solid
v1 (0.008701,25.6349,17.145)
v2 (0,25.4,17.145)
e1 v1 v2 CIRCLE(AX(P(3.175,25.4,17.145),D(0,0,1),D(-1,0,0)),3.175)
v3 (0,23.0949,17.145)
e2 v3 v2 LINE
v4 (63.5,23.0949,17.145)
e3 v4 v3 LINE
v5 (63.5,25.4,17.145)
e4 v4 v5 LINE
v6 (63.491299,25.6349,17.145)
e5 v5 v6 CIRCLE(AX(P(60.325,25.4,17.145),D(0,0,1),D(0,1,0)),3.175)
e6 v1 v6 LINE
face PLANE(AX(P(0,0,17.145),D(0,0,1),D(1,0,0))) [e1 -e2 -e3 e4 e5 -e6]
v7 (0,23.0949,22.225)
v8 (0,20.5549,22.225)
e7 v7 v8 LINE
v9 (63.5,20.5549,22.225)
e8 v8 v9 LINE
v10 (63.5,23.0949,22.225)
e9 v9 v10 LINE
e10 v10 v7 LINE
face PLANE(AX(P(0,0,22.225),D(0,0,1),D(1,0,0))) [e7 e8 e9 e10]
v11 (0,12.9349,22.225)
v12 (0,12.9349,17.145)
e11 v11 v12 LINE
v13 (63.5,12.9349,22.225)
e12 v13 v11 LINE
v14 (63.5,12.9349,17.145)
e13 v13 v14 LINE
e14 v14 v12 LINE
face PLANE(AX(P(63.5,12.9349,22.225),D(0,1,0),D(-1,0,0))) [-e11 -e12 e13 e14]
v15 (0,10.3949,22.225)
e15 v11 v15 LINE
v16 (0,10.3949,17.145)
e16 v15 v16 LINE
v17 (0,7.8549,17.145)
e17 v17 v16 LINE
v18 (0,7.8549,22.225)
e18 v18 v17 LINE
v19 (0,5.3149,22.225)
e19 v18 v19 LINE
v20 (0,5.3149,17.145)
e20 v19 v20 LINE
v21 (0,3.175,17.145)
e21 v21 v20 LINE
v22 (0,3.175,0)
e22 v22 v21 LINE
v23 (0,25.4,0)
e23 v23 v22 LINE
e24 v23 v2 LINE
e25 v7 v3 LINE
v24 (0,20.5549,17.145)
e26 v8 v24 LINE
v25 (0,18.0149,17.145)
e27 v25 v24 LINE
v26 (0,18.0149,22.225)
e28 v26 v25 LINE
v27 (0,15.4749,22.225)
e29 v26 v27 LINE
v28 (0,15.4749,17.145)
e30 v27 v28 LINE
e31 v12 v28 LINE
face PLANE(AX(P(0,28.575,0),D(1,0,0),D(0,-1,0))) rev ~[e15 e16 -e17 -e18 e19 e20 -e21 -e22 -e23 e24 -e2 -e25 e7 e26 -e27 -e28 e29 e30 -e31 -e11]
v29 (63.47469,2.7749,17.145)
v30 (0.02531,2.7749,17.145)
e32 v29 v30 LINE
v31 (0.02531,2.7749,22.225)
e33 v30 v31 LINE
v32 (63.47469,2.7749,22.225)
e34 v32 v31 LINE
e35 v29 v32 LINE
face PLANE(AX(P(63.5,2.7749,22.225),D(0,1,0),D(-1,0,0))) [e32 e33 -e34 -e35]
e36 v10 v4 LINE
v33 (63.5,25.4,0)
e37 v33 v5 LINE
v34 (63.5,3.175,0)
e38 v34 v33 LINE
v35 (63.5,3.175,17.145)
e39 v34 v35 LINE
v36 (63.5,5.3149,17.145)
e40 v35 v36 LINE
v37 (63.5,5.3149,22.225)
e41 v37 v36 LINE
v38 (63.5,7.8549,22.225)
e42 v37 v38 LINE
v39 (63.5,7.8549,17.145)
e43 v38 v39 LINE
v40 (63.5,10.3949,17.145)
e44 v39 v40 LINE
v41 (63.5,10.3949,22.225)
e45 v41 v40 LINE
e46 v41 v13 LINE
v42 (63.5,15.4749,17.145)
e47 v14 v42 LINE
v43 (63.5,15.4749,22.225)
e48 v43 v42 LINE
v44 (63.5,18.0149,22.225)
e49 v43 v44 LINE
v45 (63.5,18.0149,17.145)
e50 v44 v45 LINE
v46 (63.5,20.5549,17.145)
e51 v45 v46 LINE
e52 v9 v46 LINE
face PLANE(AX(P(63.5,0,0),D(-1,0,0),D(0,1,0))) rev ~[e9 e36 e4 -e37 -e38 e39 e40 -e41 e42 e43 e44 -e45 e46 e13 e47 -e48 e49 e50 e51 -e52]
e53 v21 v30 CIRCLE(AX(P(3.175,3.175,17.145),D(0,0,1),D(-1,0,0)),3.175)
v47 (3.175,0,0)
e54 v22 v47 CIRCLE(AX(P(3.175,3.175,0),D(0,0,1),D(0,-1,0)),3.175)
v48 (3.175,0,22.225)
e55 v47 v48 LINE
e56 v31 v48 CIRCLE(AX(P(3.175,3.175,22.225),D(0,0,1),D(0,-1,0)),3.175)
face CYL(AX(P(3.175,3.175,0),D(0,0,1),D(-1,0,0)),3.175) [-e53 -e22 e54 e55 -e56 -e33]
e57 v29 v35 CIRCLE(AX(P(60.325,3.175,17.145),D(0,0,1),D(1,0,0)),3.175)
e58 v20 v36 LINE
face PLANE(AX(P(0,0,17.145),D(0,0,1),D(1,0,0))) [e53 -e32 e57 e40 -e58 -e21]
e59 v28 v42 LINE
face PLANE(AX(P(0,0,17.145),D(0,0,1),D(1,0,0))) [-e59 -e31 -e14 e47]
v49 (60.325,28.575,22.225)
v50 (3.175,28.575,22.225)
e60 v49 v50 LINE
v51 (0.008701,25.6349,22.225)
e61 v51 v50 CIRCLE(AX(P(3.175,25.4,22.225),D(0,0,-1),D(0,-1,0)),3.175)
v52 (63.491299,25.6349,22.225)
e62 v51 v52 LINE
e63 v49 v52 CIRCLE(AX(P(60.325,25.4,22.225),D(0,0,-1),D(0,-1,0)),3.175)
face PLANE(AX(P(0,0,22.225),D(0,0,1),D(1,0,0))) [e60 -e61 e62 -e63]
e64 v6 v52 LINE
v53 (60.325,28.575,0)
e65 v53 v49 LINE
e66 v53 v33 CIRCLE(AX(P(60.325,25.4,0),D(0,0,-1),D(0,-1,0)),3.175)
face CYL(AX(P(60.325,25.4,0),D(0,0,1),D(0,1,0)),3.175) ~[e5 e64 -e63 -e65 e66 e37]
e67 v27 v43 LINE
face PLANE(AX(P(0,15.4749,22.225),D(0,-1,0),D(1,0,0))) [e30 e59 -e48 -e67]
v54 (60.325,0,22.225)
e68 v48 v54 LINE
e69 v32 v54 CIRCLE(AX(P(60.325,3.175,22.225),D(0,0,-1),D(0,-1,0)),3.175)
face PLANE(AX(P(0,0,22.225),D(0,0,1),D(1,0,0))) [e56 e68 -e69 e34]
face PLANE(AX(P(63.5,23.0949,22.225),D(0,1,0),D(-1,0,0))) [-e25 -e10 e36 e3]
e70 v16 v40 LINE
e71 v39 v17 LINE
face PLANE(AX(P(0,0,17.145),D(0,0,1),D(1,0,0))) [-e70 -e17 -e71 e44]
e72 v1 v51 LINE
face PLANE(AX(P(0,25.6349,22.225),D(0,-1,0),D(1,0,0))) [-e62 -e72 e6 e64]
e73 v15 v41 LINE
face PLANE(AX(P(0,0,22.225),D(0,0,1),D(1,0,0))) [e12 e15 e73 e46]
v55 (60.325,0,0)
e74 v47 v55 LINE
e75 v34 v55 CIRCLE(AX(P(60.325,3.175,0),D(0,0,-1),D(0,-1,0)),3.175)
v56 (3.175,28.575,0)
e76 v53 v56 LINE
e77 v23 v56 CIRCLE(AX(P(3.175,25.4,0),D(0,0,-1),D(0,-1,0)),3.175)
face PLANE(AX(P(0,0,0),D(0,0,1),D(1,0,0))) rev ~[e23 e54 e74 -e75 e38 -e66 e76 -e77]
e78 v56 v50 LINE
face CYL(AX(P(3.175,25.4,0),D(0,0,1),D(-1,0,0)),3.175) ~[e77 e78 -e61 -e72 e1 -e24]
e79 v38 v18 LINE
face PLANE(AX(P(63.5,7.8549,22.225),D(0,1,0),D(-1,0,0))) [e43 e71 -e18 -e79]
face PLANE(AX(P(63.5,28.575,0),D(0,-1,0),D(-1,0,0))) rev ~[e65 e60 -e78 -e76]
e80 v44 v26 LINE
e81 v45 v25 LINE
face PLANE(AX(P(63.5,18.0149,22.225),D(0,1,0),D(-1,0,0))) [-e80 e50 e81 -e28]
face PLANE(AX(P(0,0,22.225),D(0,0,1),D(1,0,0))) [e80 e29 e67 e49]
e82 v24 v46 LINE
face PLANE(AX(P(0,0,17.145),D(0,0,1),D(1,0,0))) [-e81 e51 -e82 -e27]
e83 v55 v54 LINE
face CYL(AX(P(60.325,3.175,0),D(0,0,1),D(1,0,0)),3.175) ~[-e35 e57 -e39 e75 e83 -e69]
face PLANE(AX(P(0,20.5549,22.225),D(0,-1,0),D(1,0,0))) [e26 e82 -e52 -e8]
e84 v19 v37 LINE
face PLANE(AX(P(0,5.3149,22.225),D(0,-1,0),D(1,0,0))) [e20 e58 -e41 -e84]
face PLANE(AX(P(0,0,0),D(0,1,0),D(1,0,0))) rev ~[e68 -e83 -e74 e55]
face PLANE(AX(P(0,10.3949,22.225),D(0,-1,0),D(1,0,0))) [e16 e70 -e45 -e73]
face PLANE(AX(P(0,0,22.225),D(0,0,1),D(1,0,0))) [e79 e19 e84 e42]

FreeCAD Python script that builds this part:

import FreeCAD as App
import Part
import Sketcher
from FreeCAD import Vector
Q = App.Units.Quantity


def edges_at(feature, points):
    """Names of the edges that pass closest to the given points."""
    edges = feature.Shape.Edges
    near = lambda p: min(range(len(edges)), key=lambda i: edges[i].distToShape(Part.Vertex(*p))[0])
    return sorted({f"Edge{near(p) + 1}" for p in points})

doc = App.newDocument("Part")
body = doc.addObject("PartDesign::Body", "Body")

# Sketch on XY plane
sketch1 = body.newObject("Sketcher::SketchObject", "Sketch")
sketch1.AttachmentSupport = (doc.getObject("XY_Plane"), [""])
sketch1.MapMode = "FlatFace"
sketch1.addGeometry(Part.LineSegment(Vector(0, 29, 0), Vector(0, 0, 0)), False)
sketch1.addGeometry(Part.LineSegment(Vector(0, 0, 0), Vector(64, 0, 0)), False)
sketch1.addGeometry(Part.LineSegment(Vector(64, 0, 0), Vector(64, 29, 0)), False)
sketch1.addGeometry(Part.LineSegment(Vector(64, 29, 0), Vector(0, 29, 0)), False)
sketch1.addConstraint(Sketcher.Constraint("Coincident", 0, 2, 1, 1))
sketch1.addConstraint(Sketcher.Constraint("Coincident", 1, 2, 2, 1))
sketch1.addConstraint(Sketcher.Constraint("Coincident", 2, 2, 3, 1))
sketch1.addConstraint(Sketcher.Constraint("Coincident", 3, 2, 0, 1))
sketch1.addConstraint(Sketcher.Constraint("Vertical", 0))
sketch1.addConstraint(Sketcher.Constraint("Horizontal", 1))
sketch1.addConstraint(Sketcher.Constraint("Vertical", 2))
sketch1.addConstraint(Sketcher.Constraint("Horizontal", 3))
sketch1.addConstraint(Sketcher.Constraint("Coincident", 0, 2, -1, 1))
sketch1.addConstraint(Sketcher.Constraint("DistanceX", 1, 1, 1, 2, Q("2.5 in")))
sketch1.addConstraint(Sketcher.Constraint("DistanceY", 0, 2, 0, 1, Q("1.125 in")))
pad1 = body.newObject("PartDesign::Pad", "Pad")
pad1.Profile = sketch1
pad1.Length = Q("0.875 in")
doc.recompute()

fillet = body.newObject("PartDesign::Fillet", "Fillet")
fillet.Base = (pad1, edges_at(pad1, [
    (63.5, 28.575, 11.113),
    (63.5, 0, 11.113),
    (0, 0, 11.113),
    (0, 28.575, 11.113),
]))
fillet.Radius = Q("0.125 in")

# Sketch on XY plane
sketch2 = body.newObject("Sketcher::SketchObject", "Sketch001")
sketch2.AttachmentSupport = (doc.getObject("XY_Plane"), [""])
sketch2.MapMode = "FlatFace"
sketch2.AttachmentOffset = App.Placement(Vector(0, 0, 0.875 * 25.4), App.Rotation())
sketch2.addGeometry(Part.LineSegment(Vector(63.5, 2.8, 0), Vector(63.5, 5.3, 0)), False)
sketch2.addGeometry(Part.LineSegment(Vector(63.5, 5.3, 0), Vector(0, 5.3, 0)), False)
sketch2.addGeometry(Part.LineSegment(Vector(0, 5.3, 0), Vector(0, 2.8, 0)), False)
sketch2.addGeometry(Part.LineSegment(Vector(0, 2.8, 0), Vector(63.5, 2.8, 0)), False)
sketch2.addGeometry(Part.LineSegment(Vector(0, 23.1, 0), Vector(63.5, 23.1, 0)), False)
sketch2.addGeometry(Part.LineSegment(Vector(63.5, 23.1, 0), Vector(63.5, 25.6, 0)), False)
sketch2.addGeometry(Part.LineSegment(Vector(63.5, 25.6, 0), Vector(0, 25.6, 0)), False)
sketch2.addGeometry(Part.LineSegment(Vector(0, 25.6, 0), Vector(0, 23.1, 0)), False)
sketch2.addGeometry(Part.LineSegment(Vector(0, 18, 0), Vector(63.5, 18, 0)), False)
sketch2.addGeometry(Part.LineSegment(Vector(63.5, 18, 0), Vector(63.5, 20.6, 0)), False)
sketch2.addGeometry(Part.LineSegment(Vector(63.5, 20.6, 0), Vector(0, 20.6, 0)), False)
sketch2.addGeometry(Part.LineSegment(Vector(0, 20.6, 0), Vector(0, 18, 0)), False)
sketch2.addGeometry(Part.LineSegment(Vector(0, 12.9, 0), Vector(63.5, 12.9, 0)), False)
sketch2.addGeometry(Part.LineSegment(Vector(63.5, 12.9, 0), Vector(63.5, 15.5, 0)), False)
sketch2.addGeometry(Part.LineSegment(Vector(63.5, 15.5, 0), Vector(0, 15.5, 0)), False)
sketch2.addGeometry(Part.LineSegment(Vector(0, 15.5, 0), Vector(0, 12.9, 0)), False)
sketch2.addGeometry(Part.LineSegment(Vector(0, 7.9, 0), Vector(63.5, 7.9, 0)), False)
sketch2.addGeometry(Part.LineSegment(Vector(63.5, 7.9, 0), Vector(63.5, 10.4, 0)), False)
sketch2.addGeometry(Part.LineSegment(Vector(63.5, 10.4, 0), Vector(0, 10.4, 0)), False)
sketch2.addGeometry(Part.LineSegment(Vector(0, 10.4, 0), Vector(0, 7.9, 0)), False)
sketch2.addConstraint(Sketcher.Constraint("Coincident", 0, 2, 1, 1))
sketch2.addConstraint(Sketcher.Constraint("Coincident", 1, 2, 2, 1))
sketch2.addConstraint(Sketcher.Constraint("Coincident", 2, 2, 3, 1))
sketch2.addConstraint(Sketcher.Constraint("Coincident", 3, 2, 0, 1))
sketch2.addConstraint(Sketcher.Constraint("Coincident", 4, 2, 5, 1))
sketch2.addConstraint(Sketcher.Constraint("Coincident", 5, 2, 6, 1))
sketch2.addConstraint(Sketcher.Constraint("Coincident", 6, 2, 7, 1))
sketch2.addConstraint(Sketcher.Constraint("Coincident", 7, 2, 4, 1))
sketch2.addConstraint(Sketcher.Constraint("Coincident", 8, 2, 9, 1))
sketch2.addConstraint(Sketcher.Constraint("Coincident", 9, 2, 10, 1))
sketch2.addConstraint(Sketcher.Constraint("Coincident", 10, 2, 11, 1))
sketch2.addConstraint(Sketcher.Constraint("Coincident", 11, 2, 8, 1))
sketch2.addConstraint(Sketcher.Constraint("Coincident", 12, 2, 13, 1))
sketch2.addConstraint(Sketcher.Constraint("Coincident", 13, 2, 14, 1))
sketch2.addConstraint(Sketcher.Constraint("Coincident", 14, 2, 15, 1))
sketch2.addConstraint(Sketcher.Constraint("Coincident", 15, 2, 12, 1))
sketch2.addConstraint(Sketcher.Constraint("Coincident", 16, 2, 17, 1))
sketch2.addConstraint(Sketcher.Constraint("Coincident", 17, 2, 18, 1))
sketch2.addConstraint(Sketcher.Constraint("Coincident", 18, 2, 19, 1))
sketch2.addConstraint(Sketcher.Constraint("Coincident", 19, 2, 16, 1))
sketch2.addConstraint(Sketcher.Constraint("Vertical", 0))
sketch2.addConstraint(Sketcher.Constraint("Horizontal", 1))
sketch2.addConstraint(Sketcher.Constraint("Vertical", 2))
sketch2.addConstraint(Sketcher.Constraint("Horizontal", 3))
sketch2.addConstraint(Sketcher.Constraint("Horizontal", 4))
sketch2.addConstraint(Sketcher.Constraint("Vertical", 5))
sketch2.addConstraint(Sketcher.Constraint("Horizontal", 6))
sketch2.addConstraint(Sketcher.Constraint("Vertical", 7))
sketch2.addConstraint(Sketcher.Constraint("Horizontal", 8))
sketch2.addConstraint(Sketcher.Constraint("Vertical", 9))
sketch2.addConstraint(Sketcher.Constraint("Horizontal", 10))
sketch2.addConstraint(Sketcher.Constraint("Vertical", 11))
sketch2.addConstraint(Sketcher.Constraint("Horizontal", 12))
sketch2.addConstraint(Sketcher.Constraint("Vertical", 13))
sketch2.addConstraint(Sketcher.Constraint("Horizontal", 14))
sketch2.addConstraint(Sketcher.Constraint("Vertical", 15))
sketch2.addConstraint(Sketcher.Constraint("Horizontal", 16))
sketch2.addConstraint(Sketcher.Constraint("Vertical", 17))
sketch2.addConstraint(Sketcher.Constraint("Horizontal", 18))
sketch2.addConstraint(Sketcher.Constraint("Vertical", 19))
sketch2.addConstraint(Sketcher.Constraint("PointOnObject", 1, 2, -2))
sketch2.addConstraint(Sketcher.Constraint("PointOnObject", 6, 2, -2))
sketch2.addConstraint(Sketcher.Constraint("PointOnObject", 10, 2, -2))
sketch2.addConstraint(Sketcher.Constraint("PointOnObject", 14, 2, -2))
sketch2.addConstraint(Sketcher.Constraint("PointOnObject", 18, 2, -2))
sketch2.addConstraint(Sketcher.Constraint("Vertical", 3, 2, 4, 2))
sketch2.addConstraint(Sketcher.Constraint("Vertical", 5, 2, 8, 2))
sketch2.addConstraint(Sketcher.Constraint("Vertical", 9, 2, 12, 2))
sketch2.addConstraint(Sketcher.Constraint("Vertical", 13, 2, 16, 2))
sketch2.addConstraint(Sketcher.Constraint("Equal", 2, 5))
sketch2.addConstraint(Sketcher.Constraint("Equal", 7, 9))
sketch2.addConstraint(Sketcher.Constraint("Equal", 11, 13))
sketch2.addConstraint(Sketcher.Constraint("Equal", 15, 17))
sketch2.addConstraint(Sketcher.Constraint("DistanceY", 0, 1, 0, 2, Q("0.1 in")))
sketch2.addConstraint(Sketcher.Constraint("DistanceY", 8, 2, 4, 2, Q("0.2 in")))
sketch2.addConstraint(Sketcher.Constraint("DistanceY", 12, 2, 8, 2, Q("0.2 in")))
sketch2.addConstraint(Sketcher.Constraint("DistanceY", 0, 2, 16, 2, Q("0.1 in")))
sketch2.addConstraint(Sketcher.Constraint("DistanceY", 16, 2, 12, 2, Q("0.2 in")))
sketch2.addConstraint(Sketcher.Constraint("DistanceX", 1, 2, 1, 1, Q("2.5 in")))
sketch2.addConstraint(Sketcher.Constraint("DistanceY", -1, 1, 0, 2, Q("5.315 mm")))
pocket1 = body.newObject("PartDesign::Pocket", "Pocket")
pocket1.Profile = sketch2
pocket1.Length = Q("0.2 in")

doc.recompute()
